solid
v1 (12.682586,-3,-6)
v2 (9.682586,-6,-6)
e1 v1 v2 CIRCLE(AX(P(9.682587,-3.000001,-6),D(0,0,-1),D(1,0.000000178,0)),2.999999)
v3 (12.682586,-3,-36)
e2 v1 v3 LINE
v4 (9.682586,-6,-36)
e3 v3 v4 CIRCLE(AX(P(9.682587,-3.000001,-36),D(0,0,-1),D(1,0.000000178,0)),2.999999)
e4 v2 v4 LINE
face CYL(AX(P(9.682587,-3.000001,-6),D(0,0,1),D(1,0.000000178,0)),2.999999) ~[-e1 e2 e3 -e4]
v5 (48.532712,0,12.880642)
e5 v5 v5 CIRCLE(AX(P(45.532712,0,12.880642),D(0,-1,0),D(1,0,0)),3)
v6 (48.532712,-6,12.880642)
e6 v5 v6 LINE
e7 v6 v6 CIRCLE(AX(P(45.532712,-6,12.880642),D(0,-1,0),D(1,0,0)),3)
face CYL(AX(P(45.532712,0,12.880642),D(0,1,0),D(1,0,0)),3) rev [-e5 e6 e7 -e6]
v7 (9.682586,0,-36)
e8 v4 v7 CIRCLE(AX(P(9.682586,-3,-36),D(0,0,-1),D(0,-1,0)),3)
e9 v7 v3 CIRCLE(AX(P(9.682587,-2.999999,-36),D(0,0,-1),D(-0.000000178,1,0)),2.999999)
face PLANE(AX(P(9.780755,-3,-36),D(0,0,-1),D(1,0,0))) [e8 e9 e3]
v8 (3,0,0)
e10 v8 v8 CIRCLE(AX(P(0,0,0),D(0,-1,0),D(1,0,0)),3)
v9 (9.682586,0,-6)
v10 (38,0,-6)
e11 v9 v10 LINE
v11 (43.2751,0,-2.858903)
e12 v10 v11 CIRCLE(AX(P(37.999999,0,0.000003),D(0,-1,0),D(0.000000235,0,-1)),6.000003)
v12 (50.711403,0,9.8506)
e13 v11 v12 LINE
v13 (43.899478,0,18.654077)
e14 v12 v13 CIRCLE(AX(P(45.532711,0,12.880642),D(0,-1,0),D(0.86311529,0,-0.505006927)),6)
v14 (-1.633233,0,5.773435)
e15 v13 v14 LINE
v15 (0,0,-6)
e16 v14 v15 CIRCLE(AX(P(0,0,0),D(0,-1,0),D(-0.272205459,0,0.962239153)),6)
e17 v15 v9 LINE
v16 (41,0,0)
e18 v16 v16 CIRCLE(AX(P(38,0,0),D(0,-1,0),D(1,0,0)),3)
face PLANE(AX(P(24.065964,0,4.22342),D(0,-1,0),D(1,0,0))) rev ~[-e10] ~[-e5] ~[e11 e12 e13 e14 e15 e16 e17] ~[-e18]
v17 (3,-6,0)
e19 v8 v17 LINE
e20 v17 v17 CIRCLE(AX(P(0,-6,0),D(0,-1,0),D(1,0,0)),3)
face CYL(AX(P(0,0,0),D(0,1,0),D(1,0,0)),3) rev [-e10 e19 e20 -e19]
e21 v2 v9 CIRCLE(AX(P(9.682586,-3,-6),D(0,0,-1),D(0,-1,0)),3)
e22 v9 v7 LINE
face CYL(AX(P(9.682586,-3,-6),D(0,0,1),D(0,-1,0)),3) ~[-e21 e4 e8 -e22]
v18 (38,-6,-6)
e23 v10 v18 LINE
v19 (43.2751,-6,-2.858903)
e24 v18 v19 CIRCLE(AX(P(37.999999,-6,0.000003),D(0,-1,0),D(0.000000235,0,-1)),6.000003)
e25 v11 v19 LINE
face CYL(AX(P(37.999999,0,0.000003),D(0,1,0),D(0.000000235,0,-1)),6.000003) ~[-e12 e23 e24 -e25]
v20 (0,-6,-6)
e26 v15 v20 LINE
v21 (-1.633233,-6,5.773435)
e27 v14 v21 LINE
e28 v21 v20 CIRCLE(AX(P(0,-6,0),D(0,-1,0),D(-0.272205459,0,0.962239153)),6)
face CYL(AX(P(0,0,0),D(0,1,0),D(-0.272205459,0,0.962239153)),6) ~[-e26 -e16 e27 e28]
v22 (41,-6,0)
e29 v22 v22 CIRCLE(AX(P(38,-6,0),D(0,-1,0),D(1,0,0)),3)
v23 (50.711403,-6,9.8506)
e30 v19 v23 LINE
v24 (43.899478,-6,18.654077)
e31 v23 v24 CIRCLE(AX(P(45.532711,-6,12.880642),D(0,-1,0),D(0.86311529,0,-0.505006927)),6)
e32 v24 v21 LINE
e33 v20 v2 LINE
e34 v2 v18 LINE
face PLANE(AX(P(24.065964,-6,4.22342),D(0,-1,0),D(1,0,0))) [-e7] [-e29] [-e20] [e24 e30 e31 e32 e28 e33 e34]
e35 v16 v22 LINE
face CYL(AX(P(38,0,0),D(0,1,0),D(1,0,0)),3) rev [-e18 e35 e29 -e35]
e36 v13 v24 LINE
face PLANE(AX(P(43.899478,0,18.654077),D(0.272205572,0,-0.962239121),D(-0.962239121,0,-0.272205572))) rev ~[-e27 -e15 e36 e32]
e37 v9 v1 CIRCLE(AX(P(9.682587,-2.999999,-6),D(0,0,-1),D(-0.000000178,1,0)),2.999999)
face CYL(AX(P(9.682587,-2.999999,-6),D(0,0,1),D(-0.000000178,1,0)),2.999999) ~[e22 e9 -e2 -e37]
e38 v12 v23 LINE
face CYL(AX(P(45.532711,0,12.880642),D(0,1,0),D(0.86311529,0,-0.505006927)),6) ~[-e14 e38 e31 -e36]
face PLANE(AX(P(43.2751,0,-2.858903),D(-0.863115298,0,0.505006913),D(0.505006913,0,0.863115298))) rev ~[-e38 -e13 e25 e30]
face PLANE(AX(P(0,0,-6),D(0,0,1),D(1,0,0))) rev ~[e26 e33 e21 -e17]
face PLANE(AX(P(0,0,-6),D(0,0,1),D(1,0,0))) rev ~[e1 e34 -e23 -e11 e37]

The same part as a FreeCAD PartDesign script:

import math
import FreeCAD as App
import Part
import Sketcher

V = App.Vector

doc = App.newDocument("Part")
body = doc.addObject("PartDesign::Body", "Body")

# Sketch on XZ plane
sketch1 = body.newObject("Sketcher::SketchObject", "Sketch")
sketch1.AttachmentSupport = (doc.getObject("XZ_Plane"), [""])
sketch1.MapMode = "FlatFace"
sketch1.addGeometry([
    Part.LineSegment(V(43.899478, 18.654077, 0), V(-1.633233, 5.773435, 0)),  # 0
    Part.ArcOfCircle(Part.Circle(V(0, 0, 0), V(0, 0, 1), 6), math.radians(105.795547), math.radians(270.000002)),  # 1
    Part.LineSegment(V(0, -6, 0), V(38, -6, 0)),  # 2
    Part.ArcOfCircle(Part.Circle(V(37.999999, 0.000003, 0), V(0, 0, 1), 6.000003), math.radians(-89.999987), math.radians(-28.456026)),  # 3
    Part.LineSegment(V(43.2751, -2.858903, 0), V(50.711403, 9.8506, 0)),  # 4
    Part.ArcOfCircle(Part.Circle(V(45.532711, 12.880642, 0), V(0, 0, 1), 6), math.radians(-30.331812), math.radians(105.795548)),  # 5
    Part.Circle(V(0, 0, 0), V(0, 0, 1), 3),  # 6
    Part.Circle(V(38, 0, 0), V(0, 0, 1), 3),  # 7
    Part.Circle(V(45.532712, 12.880642, 0), V(0, 0, 1), 3),  # 8
], False)
sketch1.addConstraint([
    Sketcher.Constraint("Tangent", 0, 2, 1, 1),
    Sketcher.Constraint("Tangent", 1, 2, 2, 1),
    Sketcher.Constraint("Tangent", 2, 2, 3, 1),
    Sketcher.Constraint("Coincident", 3, 2, 4, 1),
    Sketcher.Constraint("Tangent", 4, 2, 5, 1),
    Sketcher.Constraint("Tangent", 5, 2, 0, 1),
    Sketcher.Constraint("Horizontal", 2),
    Sketcher.Constraint("Coincident", 1, 3, -1, 1),
    Sketcher.Constraint("Coincident", 6, 3, -1, 1),
    Sketcher.Constraint("Coincident", 7, 3, 3, 3),
    Sketcher.Constraint("Coincident", 8, 3, 5, 3),
    Sketcher.Constraint("Equal", 1, 5),
    Sketcher.Constraint("Equal", 6, 7),
    Sketcher.Constraint("Equal", 7, 8),
    Sketcher.Constraint("PointOnObject", 7, 3, -1),
    Sketcher.Constraint("Diameter", 6, 6.0),
    Sketcher.Constraint("Radius", 1, 6.0),
    Sketcher.Constraint("DistanceX", 2, 1, 2, 2, 38.0),
    Sketcher.Constraint("DistanceX", -1, 1, 3, 2, 43.2751),
    Sketcher.Constraint("DistanceY", -1, 1, 4, 2, 9.8506),
    Sketcher.Constraint("Distance", 0, 47.319538),
])
pad1 = body.newObject("PartDesign::Pad", "Pad")
pad1.Profile = sketch1
pad1.Length = 6

# Sketch on XY plane
sketch2 = body.newObject("Sketcher::SketchObject", "Sketch001")
sketch2.AttachmentSupport = (doc.getObject("XY_Plane"), [""])
sketch2.MapMode = "FlatFace"
sketch2.AttachmentOffset = App.Placement(V(0, 0, -6), App.Rotation())
sketch2.addGeometry([
    Part.ArcOfCircle(Part.Circle(V(9.682587, -2.999999, 0), V(0, 0, 1), 2.999999), math.radians(-0.00001), math.radians(90.00001)),
    Part.ArcOfCircle(Part.Circle(V(9.682587, -3.000001, 0), V(0, 0, 1), 2.999999), math.radians(-90.00001), math.radians(0.00001)),
    Part.ArcOfCircle(Part.Circle(V(9.682586, -3, 0), V(0, 0, 1), 3), math.radians(90), math.radians(270)),
], False)
sketch2.addConstraint([
    Sketcher.Constraint("Tangent", 0, 1, 1, 2),
    Sketcher.Constraint("Tangent", 1, 1, 2, 2),
    Sketcher.Constraint("Tangent", 2, 1, 0, 2),
    Sketcher.Constraint("PointOnObject", 2, 1, -1),
    Sketcher.Constraint("Horizontal", 2, 3, 0, 1),
    Sketcher.Constraint("Vertical", 2, 3, 1, 1),
    Sketcher.Constraint("Vertical", 1, 1, 2, 1),
    Sketcher.Constraint("Radius", 0, 2.999999),
    Sketcher.Constraint("DistanceX", -1, 1, 0, 3, 9.682587),
])
pad2 = body.newObject("PartDesign::Pad", "Pad001")
pad2.Profile = sketch2
pad2.Length = 30
pad2.Reversed = True

doc.recompute()
